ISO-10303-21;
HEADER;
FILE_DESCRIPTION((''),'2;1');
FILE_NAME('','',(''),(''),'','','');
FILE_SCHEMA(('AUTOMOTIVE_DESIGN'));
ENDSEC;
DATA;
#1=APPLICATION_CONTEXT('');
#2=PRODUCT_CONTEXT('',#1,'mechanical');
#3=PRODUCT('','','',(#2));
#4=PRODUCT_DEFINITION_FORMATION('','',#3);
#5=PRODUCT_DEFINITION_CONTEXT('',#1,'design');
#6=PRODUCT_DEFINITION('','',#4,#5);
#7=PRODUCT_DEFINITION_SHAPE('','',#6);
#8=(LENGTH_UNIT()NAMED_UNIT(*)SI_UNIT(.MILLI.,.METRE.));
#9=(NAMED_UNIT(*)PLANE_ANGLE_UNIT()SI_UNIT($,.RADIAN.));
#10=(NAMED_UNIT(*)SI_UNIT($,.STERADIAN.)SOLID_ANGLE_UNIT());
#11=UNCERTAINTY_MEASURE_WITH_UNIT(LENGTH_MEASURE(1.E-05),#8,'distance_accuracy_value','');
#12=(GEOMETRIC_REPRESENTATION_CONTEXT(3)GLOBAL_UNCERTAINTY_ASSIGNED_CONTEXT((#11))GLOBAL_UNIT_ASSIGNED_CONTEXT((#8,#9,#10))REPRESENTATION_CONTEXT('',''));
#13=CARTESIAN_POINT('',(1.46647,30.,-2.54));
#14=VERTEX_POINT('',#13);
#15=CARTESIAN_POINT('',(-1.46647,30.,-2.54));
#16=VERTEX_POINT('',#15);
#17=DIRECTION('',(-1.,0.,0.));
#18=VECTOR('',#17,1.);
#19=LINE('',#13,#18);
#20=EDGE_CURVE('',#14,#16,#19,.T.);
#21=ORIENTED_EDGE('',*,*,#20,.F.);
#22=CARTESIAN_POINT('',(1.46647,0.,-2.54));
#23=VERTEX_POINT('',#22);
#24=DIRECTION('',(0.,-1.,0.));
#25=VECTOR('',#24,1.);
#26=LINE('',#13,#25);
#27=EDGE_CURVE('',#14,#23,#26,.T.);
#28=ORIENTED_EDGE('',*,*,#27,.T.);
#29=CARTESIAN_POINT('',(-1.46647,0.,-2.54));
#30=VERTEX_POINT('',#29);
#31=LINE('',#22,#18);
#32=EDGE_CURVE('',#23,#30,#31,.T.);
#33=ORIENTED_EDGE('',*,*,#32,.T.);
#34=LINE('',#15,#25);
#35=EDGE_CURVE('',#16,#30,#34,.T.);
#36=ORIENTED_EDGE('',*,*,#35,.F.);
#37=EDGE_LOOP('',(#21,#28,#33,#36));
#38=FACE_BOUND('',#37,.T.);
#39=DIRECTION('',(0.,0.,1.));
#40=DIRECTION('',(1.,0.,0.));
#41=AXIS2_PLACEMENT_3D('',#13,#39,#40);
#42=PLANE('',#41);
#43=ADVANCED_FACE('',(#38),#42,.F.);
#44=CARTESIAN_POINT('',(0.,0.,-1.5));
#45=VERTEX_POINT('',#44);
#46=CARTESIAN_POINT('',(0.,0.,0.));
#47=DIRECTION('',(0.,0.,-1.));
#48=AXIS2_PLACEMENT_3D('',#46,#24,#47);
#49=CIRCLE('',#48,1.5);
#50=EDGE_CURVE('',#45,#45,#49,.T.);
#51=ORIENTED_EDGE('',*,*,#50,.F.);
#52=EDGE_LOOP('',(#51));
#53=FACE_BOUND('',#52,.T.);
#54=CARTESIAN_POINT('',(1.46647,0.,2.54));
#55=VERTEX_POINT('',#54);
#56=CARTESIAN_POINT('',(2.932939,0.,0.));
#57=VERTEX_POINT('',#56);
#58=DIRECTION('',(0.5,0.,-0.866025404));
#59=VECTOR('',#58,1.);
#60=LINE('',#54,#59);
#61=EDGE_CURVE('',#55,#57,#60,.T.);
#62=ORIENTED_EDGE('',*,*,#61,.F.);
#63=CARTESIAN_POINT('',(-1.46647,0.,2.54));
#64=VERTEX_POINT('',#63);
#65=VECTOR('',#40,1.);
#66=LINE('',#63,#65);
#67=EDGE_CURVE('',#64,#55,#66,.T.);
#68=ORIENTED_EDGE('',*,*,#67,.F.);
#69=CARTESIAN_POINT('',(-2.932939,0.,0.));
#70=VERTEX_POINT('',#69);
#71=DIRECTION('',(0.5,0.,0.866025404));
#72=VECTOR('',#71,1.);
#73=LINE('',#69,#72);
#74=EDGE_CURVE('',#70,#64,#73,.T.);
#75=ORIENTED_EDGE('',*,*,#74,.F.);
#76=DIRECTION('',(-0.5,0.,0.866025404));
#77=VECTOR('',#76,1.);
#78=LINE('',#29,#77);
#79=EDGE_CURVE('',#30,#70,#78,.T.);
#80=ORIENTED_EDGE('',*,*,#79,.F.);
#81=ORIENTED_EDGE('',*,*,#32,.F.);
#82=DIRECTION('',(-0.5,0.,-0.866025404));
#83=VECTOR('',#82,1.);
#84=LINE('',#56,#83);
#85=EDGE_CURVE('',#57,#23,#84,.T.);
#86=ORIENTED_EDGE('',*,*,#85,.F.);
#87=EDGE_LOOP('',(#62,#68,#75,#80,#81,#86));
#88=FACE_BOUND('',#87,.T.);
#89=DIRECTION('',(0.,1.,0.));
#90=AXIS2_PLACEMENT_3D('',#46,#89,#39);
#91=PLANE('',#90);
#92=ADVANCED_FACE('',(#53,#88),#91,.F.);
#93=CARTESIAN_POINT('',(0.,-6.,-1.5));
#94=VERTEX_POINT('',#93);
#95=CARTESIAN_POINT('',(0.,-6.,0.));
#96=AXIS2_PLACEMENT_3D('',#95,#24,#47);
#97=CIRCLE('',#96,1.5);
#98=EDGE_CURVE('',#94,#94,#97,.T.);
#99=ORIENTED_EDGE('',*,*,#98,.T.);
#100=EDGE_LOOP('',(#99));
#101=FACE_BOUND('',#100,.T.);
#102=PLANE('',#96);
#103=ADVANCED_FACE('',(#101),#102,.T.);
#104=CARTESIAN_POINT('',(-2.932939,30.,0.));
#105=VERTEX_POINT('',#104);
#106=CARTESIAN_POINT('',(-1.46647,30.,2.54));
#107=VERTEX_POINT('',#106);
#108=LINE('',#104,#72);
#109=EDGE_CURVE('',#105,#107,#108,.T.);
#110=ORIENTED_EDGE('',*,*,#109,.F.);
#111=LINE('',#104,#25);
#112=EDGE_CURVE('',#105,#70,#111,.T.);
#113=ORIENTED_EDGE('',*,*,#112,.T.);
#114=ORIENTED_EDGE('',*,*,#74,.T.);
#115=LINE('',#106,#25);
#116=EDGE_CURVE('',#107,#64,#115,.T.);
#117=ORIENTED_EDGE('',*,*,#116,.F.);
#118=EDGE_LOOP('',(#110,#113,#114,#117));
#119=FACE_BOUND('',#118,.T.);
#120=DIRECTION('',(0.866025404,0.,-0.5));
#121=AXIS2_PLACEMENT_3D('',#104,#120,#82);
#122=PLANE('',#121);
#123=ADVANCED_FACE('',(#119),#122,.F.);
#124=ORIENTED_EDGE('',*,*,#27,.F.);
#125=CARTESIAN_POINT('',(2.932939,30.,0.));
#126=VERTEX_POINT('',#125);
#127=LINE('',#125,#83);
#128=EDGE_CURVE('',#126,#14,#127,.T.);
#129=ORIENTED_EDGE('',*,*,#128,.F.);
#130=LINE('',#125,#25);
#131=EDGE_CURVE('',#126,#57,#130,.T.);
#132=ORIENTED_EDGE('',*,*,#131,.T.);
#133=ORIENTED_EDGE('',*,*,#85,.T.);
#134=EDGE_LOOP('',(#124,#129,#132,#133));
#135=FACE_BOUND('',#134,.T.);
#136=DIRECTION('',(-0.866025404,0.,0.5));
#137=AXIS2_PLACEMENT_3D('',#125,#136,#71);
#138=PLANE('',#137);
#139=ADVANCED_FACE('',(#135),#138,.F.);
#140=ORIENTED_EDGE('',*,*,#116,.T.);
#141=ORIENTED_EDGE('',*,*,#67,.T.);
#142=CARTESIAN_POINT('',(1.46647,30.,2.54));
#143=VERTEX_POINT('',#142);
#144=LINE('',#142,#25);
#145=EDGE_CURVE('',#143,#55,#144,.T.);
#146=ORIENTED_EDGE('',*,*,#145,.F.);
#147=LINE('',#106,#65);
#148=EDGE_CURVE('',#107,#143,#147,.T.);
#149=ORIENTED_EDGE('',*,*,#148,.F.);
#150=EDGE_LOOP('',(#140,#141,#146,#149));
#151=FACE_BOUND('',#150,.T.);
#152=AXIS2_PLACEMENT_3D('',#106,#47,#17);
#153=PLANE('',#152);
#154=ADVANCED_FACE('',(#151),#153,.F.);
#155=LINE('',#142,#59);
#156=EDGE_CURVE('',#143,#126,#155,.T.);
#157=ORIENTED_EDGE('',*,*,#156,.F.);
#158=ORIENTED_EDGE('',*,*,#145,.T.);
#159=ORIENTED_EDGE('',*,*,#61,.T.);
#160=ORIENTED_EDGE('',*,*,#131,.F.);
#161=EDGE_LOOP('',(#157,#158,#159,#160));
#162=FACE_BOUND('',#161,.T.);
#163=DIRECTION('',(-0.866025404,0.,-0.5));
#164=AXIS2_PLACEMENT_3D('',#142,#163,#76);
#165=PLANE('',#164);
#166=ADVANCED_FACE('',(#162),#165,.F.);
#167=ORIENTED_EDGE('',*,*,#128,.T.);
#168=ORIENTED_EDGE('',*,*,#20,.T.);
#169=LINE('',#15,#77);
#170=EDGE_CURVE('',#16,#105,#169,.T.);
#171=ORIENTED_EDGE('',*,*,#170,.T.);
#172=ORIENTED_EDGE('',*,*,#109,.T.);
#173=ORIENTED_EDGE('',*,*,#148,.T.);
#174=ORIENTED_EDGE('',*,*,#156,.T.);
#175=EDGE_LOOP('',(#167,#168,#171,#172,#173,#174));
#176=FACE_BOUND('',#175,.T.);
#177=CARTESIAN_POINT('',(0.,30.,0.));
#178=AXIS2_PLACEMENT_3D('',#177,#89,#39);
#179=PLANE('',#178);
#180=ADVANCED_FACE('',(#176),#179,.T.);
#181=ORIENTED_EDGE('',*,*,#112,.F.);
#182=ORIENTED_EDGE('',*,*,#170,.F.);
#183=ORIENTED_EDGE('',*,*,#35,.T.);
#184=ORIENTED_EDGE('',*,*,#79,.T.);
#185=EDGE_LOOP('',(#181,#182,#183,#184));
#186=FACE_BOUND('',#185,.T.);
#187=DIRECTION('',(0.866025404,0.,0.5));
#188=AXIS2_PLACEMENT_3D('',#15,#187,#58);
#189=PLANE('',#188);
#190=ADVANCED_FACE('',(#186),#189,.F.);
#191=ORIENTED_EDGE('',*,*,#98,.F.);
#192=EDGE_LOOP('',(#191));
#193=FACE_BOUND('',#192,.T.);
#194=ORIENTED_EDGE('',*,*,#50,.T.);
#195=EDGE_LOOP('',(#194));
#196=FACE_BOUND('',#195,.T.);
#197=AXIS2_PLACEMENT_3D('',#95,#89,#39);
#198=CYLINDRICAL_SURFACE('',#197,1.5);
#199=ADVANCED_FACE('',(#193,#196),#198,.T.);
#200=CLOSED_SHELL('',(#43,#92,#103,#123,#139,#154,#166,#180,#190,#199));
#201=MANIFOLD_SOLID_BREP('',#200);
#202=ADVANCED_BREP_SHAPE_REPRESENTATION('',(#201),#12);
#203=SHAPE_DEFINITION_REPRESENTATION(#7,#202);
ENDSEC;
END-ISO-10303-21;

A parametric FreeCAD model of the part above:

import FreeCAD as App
import Part
import Sketcher
Q = App.Units.Quantity


def add_polygon(sketch, points):
    """Adds a closed chain of lines whose ends are joined by coincident constraints."""
    first, n = sketch.GeometryCount, len(points)
    for a, b in zip(points, points[1:] + points[:1]):
        sketch.addGeometry(Part.LineSegment(App.Vector(*a, 0), App.Vector(*b, 0)), False)
    for i in range(n):
        sketch.addConstraint(Sketcher.Constraint("Coincident", first + i, 2, first + (i + 1) % n, 1))

doc = App.newDocument("Part")
body = doc.addObject("PartDesign::Body", "Body")

# Sketch on XZ plane
sketch1 = body.newObject("Sketcher::SketchObject", "Sketch")
sketch1.AttachmentSupport = (doc.getObject("XZ_Plane"), [""])
sketch1.MapMode = "FlatFace"
add_polygon(sketch1, [(1.46647, -2.54), (-1.46647, -2.54), (-2.932939, 0), (-1.46647, 2.54), (1.46647, 2.54), (2.932939, 0)])  # lines 0-5
sketch1.addConstraint([
    Sketcher.Constraint("Horizontal", 0),
    Sketcher.Constraint("Horizontal", 3),
    Sketcher.Constraint("Symmetric", 0, 2, 3, 2, -1, 1),
    Sketcher.Constraint("Symmetric", 1, 2, 4, 2, -1, 1),
    Sketcher.Constraint("PointOnObject", 1, 2, -1),
    Sketcher.Constraint("Parallel", 2, 5),
    Sketcher.Constraint("Vertical", 0, 2, 2, 2),
    Sketcher.Constraint("Angle", 1, Q("120 deg")),
    Sketcher.Constraint("DistanceY", 0, 2, -1, 1, 2.54),
    Sketcher.Constraint("DistanceX", 0, 2, 0, 1, 2.932939),
])
pad1 = body.newObject("PartDesign::Pad", "Pad")
pad1.Profile = sketch1
pad1.Length = 30
pad1.Reversed = True

# Sketch on XZ plane
sketch2 = body.newObject("Sketcher::SketchObject", "Sketch001")
sketch2.AttachmentSupport = (doc.getObject("XZ_Plane"), [""])
sketch2.MapMode = "FlatFace"
sketch2.addGeometry(Part.Circle(App.Vector(0, 0, 0), App.Vector(0, 0, 1), 1.5), False)
sketch2.addConstraint([
    Sketcher.Constraint("Coincident", 0, 3, -1, 1),
    Sketcher.Constraint("Diameter", 0, 3.0),
])
pad2 = body.newObject("PartDesign::Pad", "Pad001")
pad2.Profile = sketch2
pad2.Length = 6

doc.recompute()
